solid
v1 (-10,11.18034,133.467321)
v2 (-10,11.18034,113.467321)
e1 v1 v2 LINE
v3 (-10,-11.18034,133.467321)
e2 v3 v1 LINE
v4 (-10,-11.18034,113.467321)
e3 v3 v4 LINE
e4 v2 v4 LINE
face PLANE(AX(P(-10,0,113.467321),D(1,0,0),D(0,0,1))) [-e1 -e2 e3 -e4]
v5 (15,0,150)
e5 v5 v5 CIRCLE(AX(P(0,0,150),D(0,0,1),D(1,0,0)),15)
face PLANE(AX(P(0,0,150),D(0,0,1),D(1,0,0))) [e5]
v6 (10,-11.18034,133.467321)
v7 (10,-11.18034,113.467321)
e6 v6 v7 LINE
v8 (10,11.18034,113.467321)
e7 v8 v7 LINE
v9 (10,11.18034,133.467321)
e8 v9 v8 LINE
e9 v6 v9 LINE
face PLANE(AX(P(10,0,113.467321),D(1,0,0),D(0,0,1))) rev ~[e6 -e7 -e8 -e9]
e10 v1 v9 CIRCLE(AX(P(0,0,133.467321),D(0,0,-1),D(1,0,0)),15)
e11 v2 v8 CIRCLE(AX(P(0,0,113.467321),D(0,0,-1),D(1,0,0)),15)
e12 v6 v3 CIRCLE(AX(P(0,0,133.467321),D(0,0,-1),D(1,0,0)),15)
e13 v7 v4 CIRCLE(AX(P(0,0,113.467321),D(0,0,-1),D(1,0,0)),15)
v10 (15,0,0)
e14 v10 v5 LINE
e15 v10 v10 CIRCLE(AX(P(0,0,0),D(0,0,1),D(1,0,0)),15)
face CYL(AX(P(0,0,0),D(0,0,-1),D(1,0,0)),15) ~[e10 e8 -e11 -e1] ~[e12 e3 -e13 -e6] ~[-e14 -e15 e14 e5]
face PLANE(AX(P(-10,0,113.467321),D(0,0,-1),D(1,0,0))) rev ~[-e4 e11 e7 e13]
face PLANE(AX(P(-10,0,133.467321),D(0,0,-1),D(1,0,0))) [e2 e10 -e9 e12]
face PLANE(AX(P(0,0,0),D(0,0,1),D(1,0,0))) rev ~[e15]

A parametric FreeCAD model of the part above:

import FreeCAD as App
import Part
import Sketcher
from FreeCAD import Vector


def add_polygon(sketch, points):
    """Adds a closed chain of lines whose ends are joined by coincident constraints."""
    first, n = sketch.GeometryCount, len(points)
    for a, b in zip(points, points[1:] + points[:1]):
        sketch.addGeometry(Part.LineSegment(App.Vector(*a, 0), App.Vector(*b, 0)), False)
    for i in range(n):
        sketch.addConstraint(Sketcher.Constraint("Coincident", first + i, 2, first + (i + 1) % n, 1))

doc = App.newDocument("Part")
body = doc.addObject("PartDesign::Body", "Body")

# Sketch on XY plane
sketch1 = body.newObject("Sketcher::SketchObject", "Sketch")
sketch1.AttachmentSupport = (doc.getObject("XY_Plane"), [""])
sketch1.MapMode = "FlatFace"
sketch1.addGeometry(Part.Circle(Vector(0, 0, 0), Vector(0, 0, 1), 15), False)
sketch1.addConstraint(Sketcher.Constraint("Coincident", 0, 3, -1, 1))
sketch1.addConstraint(Sketcher.Constraint("Diameter", 0, 30.0))
pad1 = body.newObject("PartDesign::Pad", "Pad")
pad1.Profile = sketch1
pad1.Length = 150

# Sketch on XZ plane
sketch2 = body.newObject("Sketcher::SketchObject", "Sketch001")
sketch2.AttachmentSupport = (doc.getObject("XZ_Plane"), [""])
sketch2.MapMode = "FlatFace"
add_polygon(sketch2, [(-10, 133.467321), (-10, 113.467321), (10, 113.467321), (10, 133.467321)])  # lines 0-3
sketch2.addConstraint(Sketcher.Constraint("Vertical", 0))
sketch2.addConstraint(Sketcher.Constraint("Horizontal", 1))
sketch2.addConstraint(Sketcher.Constraint("Vertical", 2))
sketch2.addConstraint(Sketcher.Constraint("Horizontal", 3))
sketch2.addConstraint(Sketcher.Constraint("Equal", 3, 0))
sketch2.addConstraint(Sketcher.Constraint("DistanceX", 1, 1, 1, 2, 20.0))
sketch2.addConstraint(Sketcher.Constraint("DistanceX", 0, 2, -1, 1, 10.0))
sketch2.addConstraint(Sketcher.Constraint("DistanceY", -1, 1, 0, 2, 113.467321))
pocket1 = body.newObject("PartDesign::Pocket", "Pocket")
pocket1.Profile = sketch2
pocket1.Length = 50
pocket1.Midplane = True

doc.recompute()
